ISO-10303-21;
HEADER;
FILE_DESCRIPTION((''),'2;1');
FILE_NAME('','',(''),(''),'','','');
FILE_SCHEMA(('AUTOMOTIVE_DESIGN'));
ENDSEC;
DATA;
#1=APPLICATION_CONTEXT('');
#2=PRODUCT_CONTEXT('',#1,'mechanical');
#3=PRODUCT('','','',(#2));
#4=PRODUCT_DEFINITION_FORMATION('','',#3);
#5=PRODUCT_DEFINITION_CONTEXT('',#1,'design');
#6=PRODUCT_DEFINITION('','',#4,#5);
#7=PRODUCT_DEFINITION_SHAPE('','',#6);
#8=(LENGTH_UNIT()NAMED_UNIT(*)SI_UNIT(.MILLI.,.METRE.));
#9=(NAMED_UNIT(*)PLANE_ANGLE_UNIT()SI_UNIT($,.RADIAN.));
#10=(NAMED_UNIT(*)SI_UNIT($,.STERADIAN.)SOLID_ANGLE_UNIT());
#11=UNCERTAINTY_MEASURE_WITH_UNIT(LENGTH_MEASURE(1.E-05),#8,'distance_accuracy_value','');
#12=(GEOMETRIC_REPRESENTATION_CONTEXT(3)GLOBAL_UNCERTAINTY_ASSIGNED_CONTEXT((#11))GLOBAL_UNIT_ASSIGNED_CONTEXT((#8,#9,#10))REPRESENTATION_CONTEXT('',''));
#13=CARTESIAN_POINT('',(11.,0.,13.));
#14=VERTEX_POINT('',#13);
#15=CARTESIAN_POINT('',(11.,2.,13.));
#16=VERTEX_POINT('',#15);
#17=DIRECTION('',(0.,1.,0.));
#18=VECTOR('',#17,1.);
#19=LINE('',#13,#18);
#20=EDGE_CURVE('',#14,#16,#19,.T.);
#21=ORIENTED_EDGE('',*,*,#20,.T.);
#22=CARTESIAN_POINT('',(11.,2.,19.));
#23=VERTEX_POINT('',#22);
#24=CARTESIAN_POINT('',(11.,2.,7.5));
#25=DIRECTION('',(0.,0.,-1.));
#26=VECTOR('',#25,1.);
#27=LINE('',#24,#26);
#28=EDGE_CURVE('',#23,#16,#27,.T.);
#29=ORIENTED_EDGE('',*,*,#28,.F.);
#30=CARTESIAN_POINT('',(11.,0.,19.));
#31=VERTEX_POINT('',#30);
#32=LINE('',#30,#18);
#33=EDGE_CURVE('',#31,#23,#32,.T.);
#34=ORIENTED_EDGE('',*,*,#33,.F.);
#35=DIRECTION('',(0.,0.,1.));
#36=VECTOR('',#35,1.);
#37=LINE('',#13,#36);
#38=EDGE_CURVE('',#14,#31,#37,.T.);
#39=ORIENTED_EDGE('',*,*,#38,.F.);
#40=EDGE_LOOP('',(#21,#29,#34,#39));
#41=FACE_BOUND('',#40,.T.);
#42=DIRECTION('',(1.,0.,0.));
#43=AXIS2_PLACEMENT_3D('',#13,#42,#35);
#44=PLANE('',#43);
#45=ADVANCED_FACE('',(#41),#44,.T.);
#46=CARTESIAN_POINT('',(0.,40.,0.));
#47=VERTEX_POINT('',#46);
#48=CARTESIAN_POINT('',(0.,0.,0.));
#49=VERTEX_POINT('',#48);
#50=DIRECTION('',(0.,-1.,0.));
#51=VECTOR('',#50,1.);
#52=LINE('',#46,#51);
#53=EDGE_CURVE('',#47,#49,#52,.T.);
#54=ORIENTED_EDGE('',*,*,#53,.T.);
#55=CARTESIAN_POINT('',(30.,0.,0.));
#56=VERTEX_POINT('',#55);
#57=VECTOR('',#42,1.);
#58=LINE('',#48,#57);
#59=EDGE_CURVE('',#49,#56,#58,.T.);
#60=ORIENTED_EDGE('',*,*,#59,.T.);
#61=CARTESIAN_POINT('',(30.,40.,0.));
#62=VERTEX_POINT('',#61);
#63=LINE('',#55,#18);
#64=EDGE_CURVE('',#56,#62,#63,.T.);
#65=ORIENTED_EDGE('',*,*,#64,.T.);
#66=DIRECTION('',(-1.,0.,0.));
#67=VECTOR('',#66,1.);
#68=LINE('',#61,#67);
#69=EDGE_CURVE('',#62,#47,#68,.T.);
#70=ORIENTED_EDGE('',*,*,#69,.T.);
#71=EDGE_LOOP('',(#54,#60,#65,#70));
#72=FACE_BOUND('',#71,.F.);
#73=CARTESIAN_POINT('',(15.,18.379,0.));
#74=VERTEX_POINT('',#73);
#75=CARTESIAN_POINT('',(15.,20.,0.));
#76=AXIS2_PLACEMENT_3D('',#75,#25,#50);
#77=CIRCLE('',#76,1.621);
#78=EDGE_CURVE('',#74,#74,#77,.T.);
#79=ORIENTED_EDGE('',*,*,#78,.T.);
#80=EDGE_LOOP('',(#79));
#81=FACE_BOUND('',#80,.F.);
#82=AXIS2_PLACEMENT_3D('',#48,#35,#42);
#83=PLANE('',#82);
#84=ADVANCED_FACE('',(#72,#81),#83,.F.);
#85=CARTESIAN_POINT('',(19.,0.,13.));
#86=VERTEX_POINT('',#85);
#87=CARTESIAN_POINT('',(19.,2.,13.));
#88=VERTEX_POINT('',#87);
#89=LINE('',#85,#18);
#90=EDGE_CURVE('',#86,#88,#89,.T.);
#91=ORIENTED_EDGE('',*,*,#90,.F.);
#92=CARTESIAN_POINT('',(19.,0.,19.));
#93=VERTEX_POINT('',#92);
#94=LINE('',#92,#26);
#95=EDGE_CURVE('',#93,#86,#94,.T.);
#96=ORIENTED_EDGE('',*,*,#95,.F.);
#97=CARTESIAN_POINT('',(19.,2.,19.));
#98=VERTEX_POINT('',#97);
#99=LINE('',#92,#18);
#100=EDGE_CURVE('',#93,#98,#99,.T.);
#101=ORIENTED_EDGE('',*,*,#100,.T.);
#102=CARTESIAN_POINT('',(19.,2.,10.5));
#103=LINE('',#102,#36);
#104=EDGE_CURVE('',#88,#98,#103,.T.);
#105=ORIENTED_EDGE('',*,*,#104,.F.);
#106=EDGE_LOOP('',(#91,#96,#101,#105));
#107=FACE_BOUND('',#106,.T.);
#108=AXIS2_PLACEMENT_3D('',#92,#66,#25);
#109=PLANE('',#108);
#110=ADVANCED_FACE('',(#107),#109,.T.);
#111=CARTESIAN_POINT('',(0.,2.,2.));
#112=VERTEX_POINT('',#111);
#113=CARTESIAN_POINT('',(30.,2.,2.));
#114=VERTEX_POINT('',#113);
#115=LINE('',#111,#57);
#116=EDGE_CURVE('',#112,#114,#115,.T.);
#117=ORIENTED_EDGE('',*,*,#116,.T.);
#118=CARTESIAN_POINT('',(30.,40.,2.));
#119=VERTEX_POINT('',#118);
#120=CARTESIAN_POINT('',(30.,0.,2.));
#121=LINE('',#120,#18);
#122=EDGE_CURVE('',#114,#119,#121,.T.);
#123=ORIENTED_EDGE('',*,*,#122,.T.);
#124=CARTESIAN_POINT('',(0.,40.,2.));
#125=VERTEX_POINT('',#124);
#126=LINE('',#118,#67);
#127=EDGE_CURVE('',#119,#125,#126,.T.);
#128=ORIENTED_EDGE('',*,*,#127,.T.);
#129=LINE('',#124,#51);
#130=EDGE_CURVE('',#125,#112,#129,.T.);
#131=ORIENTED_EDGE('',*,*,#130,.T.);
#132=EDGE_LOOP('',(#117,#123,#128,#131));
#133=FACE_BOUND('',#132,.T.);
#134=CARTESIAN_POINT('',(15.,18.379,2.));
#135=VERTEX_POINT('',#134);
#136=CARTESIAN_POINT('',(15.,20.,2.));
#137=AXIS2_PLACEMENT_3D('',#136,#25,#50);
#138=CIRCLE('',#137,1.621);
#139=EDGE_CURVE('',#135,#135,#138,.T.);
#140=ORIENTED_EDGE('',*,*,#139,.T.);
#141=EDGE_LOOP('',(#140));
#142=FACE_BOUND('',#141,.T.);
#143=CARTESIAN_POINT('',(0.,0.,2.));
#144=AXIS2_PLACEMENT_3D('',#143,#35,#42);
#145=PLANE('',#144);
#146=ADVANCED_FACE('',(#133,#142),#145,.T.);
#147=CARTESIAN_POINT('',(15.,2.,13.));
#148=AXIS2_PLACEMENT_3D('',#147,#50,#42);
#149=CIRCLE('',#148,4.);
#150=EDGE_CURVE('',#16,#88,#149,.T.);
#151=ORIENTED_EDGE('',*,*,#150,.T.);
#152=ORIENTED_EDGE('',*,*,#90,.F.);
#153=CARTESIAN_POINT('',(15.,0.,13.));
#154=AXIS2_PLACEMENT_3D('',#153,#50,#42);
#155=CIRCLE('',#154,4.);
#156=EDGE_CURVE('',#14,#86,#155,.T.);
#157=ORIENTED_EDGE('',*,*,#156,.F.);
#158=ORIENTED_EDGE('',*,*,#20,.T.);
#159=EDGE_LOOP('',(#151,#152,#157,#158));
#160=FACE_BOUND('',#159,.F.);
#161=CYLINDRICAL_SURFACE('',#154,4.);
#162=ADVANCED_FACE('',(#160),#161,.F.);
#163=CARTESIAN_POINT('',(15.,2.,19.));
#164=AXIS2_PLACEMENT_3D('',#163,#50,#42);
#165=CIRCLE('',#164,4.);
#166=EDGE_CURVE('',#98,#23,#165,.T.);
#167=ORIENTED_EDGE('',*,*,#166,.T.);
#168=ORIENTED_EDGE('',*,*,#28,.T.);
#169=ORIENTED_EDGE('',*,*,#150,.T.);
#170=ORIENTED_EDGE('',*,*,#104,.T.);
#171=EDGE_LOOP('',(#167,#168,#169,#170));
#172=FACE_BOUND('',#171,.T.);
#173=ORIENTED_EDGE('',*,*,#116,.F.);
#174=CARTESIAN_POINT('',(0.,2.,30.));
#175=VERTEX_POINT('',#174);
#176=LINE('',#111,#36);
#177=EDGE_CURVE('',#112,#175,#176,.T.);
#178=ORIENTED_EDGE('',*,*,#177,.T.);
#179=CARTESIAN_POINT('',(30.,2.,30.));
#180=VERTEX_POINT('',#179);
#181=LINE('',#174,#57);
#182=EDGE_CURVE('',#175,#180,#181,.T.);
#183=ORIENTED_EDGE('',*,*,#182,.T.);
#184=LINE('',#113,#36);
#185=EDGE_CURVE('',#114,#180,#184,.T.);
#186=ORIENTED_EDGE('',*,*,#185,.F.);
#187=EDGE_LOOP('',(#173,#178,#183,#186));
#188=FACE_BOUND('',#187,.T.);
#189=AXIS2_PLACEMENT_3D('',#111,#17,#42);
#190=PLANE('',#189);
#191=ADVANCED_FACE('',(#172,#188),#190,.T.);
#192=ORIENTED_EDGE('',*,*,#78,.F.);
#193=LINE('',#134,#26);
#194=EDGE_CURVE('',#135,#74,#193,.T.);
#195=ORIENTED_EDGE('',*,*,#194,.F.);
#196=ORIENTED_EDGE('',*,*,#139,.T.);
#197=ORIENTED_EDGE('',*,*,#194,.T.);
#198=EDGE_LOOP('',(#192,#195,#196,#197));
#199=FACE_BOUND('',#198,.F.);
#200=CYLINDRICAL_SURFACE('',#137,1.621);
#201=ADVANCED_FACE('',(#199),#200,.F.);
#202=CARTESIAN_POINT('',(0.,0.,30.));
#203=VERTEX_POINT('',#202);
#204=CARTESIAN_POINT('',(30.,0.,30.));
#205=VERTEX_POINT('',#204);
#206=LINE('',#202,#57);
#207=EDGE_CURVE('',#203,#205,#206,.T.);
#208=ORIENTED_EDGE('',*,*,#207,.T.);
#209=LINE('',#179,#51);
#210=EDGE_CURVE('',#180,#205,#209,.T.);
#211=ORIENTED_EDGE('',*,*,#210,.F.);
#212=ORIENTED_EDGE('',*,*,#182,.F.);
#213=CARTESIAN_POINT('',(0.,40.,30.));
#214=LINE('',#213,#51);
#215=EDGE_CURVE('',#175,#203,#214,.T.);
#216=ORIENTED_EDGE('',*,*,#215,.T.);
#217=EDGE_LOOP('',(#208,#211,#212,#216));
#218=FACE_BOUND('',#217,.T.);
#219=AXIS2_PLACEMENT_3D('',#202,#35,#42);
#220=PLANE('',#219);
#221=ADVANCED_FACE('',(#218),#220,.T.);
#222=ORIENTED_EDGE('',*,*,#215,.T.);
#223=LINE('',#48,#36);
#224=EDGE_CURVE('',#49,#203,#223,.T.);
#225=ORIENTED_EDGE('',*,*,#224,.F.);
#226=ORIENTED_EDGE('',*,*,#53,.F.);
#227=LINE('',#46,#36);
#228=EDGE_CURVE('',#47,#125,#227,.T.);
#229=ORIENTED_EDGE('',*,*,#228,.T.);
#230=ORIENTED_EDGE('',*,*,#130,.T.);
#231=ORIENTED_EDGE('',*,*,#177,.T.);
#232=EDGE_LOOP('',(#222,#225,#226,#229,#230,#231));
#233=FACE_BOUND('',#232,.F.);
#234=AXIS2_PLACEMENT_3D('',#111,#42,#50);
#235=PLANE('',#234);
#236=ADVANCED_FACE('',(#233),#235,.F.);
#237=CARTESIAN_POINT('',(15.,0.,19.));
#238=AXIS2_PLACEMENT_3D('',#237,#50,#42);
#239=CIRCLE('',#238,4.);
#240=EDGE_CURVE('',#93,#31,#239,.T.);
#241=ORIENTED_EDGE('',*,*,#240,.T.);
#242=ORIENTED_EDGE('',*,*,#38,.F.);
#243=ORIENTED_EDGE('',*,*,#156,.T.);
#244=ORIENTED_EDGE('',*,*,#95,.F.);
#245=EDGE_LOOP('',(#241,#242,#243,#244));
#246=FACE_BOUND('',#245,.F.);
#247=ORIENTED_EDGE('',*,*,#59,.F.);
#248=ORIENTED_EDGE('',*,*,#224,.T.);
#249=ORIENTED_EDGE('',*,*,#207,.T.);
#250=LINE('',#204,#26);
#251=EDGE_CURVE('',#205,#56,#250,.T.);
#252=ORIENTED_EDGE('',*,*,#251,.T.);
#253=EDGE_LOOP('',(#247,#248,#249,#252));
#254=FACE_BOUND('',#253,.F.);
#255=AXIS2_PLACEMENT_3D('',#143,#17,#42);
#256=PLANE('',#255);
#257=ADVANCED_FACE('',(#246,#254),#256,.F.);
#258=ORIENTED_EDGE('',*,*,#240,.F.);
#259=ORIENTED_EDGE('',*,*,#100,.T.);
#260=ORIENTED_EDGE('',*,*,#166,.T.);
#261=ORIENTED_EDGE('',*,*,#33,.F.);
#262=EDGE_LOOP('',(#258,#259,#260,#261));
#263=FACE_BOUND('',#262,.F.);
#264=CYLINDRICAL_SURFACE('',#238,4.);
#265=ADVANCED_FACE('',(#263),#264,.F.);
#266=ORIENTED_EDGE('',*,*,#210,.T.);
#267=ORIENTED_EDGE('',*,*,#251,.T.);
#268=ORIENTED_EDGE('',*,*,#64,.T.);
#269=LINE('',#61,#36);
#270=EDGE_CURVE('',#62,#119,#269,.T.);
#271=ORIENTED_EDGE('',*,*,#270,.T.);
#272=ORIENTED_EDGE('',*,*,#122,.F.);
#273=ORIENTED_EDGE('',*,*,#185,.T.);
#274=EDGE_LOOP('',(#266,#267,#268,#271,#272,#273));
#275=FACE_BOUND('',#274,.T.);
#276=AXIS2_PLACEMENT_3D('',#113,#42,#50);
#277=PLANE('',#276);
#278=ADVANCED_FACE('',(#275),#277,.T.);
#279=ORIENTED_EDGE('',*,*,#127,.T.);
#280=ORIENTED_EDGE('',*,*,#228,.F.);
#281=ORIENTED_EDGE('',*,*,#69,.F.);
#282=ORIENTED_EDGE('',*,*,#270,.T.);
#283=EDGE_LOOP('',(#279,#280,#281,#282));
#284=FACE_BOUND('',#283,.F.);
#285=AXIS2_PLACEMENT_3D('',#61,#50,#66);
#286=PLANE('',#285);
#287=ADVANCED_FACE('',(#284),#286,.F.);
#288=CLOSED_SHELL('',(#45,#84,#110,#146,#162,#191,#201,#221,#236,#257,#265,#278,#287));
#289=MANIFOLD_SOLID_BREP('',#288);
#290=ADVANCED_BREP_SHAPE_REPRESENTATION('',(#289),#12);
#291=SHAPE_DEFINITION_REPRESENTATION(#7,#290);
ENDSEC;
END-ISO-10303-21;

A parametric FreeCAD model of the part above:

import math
import FreeCAD as App
import Part
import Sketcher
Q = App.Units.Quantity


def add_polygon(sketch, points):
    """Adds a closed chain of lines whose ends are joined by coincident constraints."""
    first, n = sketch.GeometryCount, len(points)
    for a, b in zip(points, points[1:] + points[:1]):
        sketch.addGeometry(Part.LineSegment(App.Vector(*a, 0), App.Vector(*b, 0)), False)
    for i in range(n):
        sketch.addConstraint(Sketcher.Constraint("Coincident", first + i, 2, first + (i + 1) % n, 1))

doc = App.newDocument("Part")
body = doc.addObject("PartDesign::Body", "Body")

# Sketch on XY plane
sketch1 = body.newObject("Sketcher::SketchObject", "Sketch")
sketch1.AttachmentSupport = (doc.getObject("XY_Plane"), [""])
sketch1.MapMode = "FlatFace"
add_polygon(sketch1, [(0, 40), (0, 0), (30, 0), (30, 40)])  # lines 0-3
sketch1.addConstraint([
    Sketcher.Constraint("Vertical", 0),
    Sketcher.Constraint("Horizontal", 1),
    Sketcher.Constraint("Vertical", 2),
    Sketcher.Constraint("Horizontal", 3),
    Sketcher.Constraint("Coincident", 0, 2, -1, 1),
    Sketcher.Constraint("DistanceX", 1, 1, 1, 2, Q("30 mm")),
    Sketcher.Constraint("DistanceY", 0, 2, 0, 1, Q("40 mm")),
])
pad1 = body.newObject("PartDesign::Pad", "Pad")
pad1.Profile = sketch1
pad1.Length = 2

# Sketch on XY plane
sketch2 = body.newObject("Sketcher::SketchObject", "Sketch001")
sketch2.AttachmentSupport = (doc.getObject("XY_Plane"), [""])
sketch2.MapMode = "FlatFace"
sketch2.AttachmentOffset = App.Placement(App.Vector(0, 0, 2), App.Rotation())
sketch2.addGeometry(Part.Circle(App.Vector(15, 20, 0), App.Vector(0, 0, 1), 1.6), False)
sketch2.addConstraint([
    Sketcher.Constraint("Diameter", 0, Q("3.242 mm")),
    Sketcher.Constraint("DistanceX", -1, 1, 0, 3, Q("15 mm")),
    Sketcher.Constraint("DistanceY", -1, 1, 0, 3, Q("20 mm")),
])
doc.recompute()
hole = body.newObject("PartDesign::Hole", "Hole")
hole.Profile = sketch2
hole.ThreadType = "None"
hole.Diameter = 3.242
hole.DepthType = "ThroughAll"

# Sketch on XY plane
sketch3 = body.newObject("Sketcher::SketchObject", "Sketch002")
sketch3.AttachmentSupport = (doc.getObject("XY_Plane"), [""])
sketch3.MapMode = "FlatFace"
sketch3.AttachmentOffset = App.Placement(App.Vector(0, 0, 2), App.Rotation())
add_polygon(sketch3, [(30, 2), (0, 2), (0, 0), (30, 0)])  # lines 0-3
sketch3.addConstraint([
    Sketcher.Constraint("Horizontal", 0),
    Sketcher.Constraint("Vertical", 1),
    Sketcher.Constraint("Horizontal", 2),
    Sketcher.Constraint("Vertical", 3),
    Sketcher.Constraint("Coincident", 1, 2, -1, 1),
    Sketcher.Constraint("DistanceX", 0, 2, 0, 1, Q("30 mm")),
    Sketcher.Constraint("DistanceY", 1, 2, 1, 1, Q("2 mm")),
])
pad2 = body.newObject("PartDesign::Pad", "Pad001")
pad2.Profile = sketch3
pad2.Length = 28

# Sketch on XZ plane
sketch4 = body.newObject("Sketcher::SketchObject", "Sketch003")
sketch4.AttachmentSupport = (doc.getObject("XZ_Plane"), [""])
sketch4.MapMode = "FlatFace"
add_polygon(sketch4, [(19, 19), (11, 19), (11, 13), (19, 13)])  # lines 0-3
sketch4.addConstraint([
    Sketcher.Constraint("Horizontal", 0),
    Sketcher.Constraint("Vertical", 1),
    Sketcher.Constraint("Horizontal", 2),
    Sketcher.Constraint("Vertical", 3),
    Sketcher.Constraint("DistanceX", 0, 2, 0, 1, Q("8 mm")),
    Sketcher.Constraint("DistanceY", 1, 2, 1, 1, Q("6 mm")),
    Sketcher.Constraint("DistanceX", -1, 1, 0, 2, Q("11 mm")),
    Sketcher.Constraint("DistanceY", -1, 1, 0, 2, Q("19 mm")),
])
pocket1 = body.newObject("PartDesign::Pocket", "Pocket")
pocket1.Profile = sketch4
pocket1.Length = 10

# Sketch on XZ plane
sketch5 = body.newObject("Sketcher::SketchObject", "Sketch004")
sketch5.AttachmentSupport = (doc.getObject("XZ_Plane"), [""])
sketch5.MapMode = "FlatFace"
sketch5.addGeometry([
    Part.ArcOfCircle(Part.Circle(App.Vector(15, 19, 0), App.Vector(0, 0, 1), 4), math.radians(0), math.radians(180)),  # 0
    Part.LineSegment(App.Vector(11, 19, 0), App.Vector(19, 19, 0)),  # 1
    Part.ArcOfCircle(Part.Circle(App.Vector(15, 19, 0), App.Vector(0, 0, 1), 4), math.radians(-131), math.radians(-49)),  # 2
    Part.ArcOfCircle(Part.Circle(App.Vector(15, 13, 0), App.Vector(0, 0, 1), 4), math.radians(131), math.radians(180)),  # 3
    Part.LineSegment(App.Vector(11, 13, 0), App.Vector(19, 13, 0)),  # 4
    Part.ArcOfCircle(Part.Circle(App.Vector(15, 13, 0), App.Vector(0, 0, 1), 4), math.radians(0), math.radians(49)),  # 5
], False)
sketch5.addConstraint([
    Sketcher.Constraint("Coincident", 0, 1, 1, 2),
    Sketcher.Constraint("Coincident", 1, 1, 0, 2),
    Sketcher.Constraint("Coincident", 2, 1, 3, 1),
    Sketcher.Constraint("Coincident", 3, 2, 4, 1),
    Sketcher.Constraint("Coincident", 4, 2, 5, 1),
    Sketcher.Constraint("Coincident", 5, 2, 2, 2),
    Sketcher.Constraint("Horizontal", 1),
    Sketcher.Constraint("Horizontal", 4),
    Sketcher.Constraint("Coincident", 2, 3, 0, 3),
    Sketcher.Constraint("Coincident", 5, 3, 3, 3),
    Sketcher.Constraint("Equal", 0, 2),
    Sketcher.Constraint("Equal", 2, 3),
    Sketcher.Constraint("Equal", 3, 5),
    Sketcher.Constraint("Horizontal", 2, 3, 0, 1),
    Sketcher.Constraint("Horizontal", 5, 3, 3, 2),
    Sketcher.Constraint("Horizontal", 2, 1, 5, 2),
    Sketcher.Constraint("Radius", 0, Q("4 mm")),
    Sketcher.Constraint("DistanceX", -1, 1, 0, 3, Q("15 mm")),
    Sketcher.Constraint("DistanceY", -1, 1, 0, 3, Q("19 mm")),
    Sketcher.Constraint("DistanceY", -1, 1, 3, 3, Q("13 mm")),
])
pocket2 = body.newObject("PartDesign::Pocket", "Pocket001")
pocket2.Profile = sketch5
pocket2.Length = 10

# Sketch on XZ plane
sketch6 = body.newObject("Sketcher::SketchObject", "Sketch005")
sketch6.AttachmentSupport = (doc.getObject("XZ_Plane"), [""])
sketch6.MapMode = "FlatFace"
sketch6.addGeometry([
    Part.LineSegment(App.Vector(19, 13, 0), App.Vector(11, 13, 0)),
    Part.ArcOfCircle(Part.Circle(App.Vector(15, 13, 0), App.Vector(0, 0, 1), 4), math.radians(180), math.radians(360)),
], False)
sketch6.addConstraint([
    Sketcher.Constraint("Coincident", 0, 1, 1, 2),
    Sketcher.Constraint("Coincident", 1, 1, 0, 2),
    Sketcher.Constraint("Horizontal", 0),
    Sketcher.Constraint("Horizontal", 1, 3, 0, 1),
    Sketcher.Constraint("Radius", 1, Q("4 mm")),
    Sketcher.Constraint("DistanceX", -1, 1, 1, 3, Q("15 mm")),
    Sketcher.Constraint("DistanceY", -1, 1, 1, 3, Q("13 mm")),
])
pocket3 = body.newObject("PartDesign::Pocket", "Pocket002")
pocket3.Profile = sketch6
pocket3.Length = 10

doc.recompute()
